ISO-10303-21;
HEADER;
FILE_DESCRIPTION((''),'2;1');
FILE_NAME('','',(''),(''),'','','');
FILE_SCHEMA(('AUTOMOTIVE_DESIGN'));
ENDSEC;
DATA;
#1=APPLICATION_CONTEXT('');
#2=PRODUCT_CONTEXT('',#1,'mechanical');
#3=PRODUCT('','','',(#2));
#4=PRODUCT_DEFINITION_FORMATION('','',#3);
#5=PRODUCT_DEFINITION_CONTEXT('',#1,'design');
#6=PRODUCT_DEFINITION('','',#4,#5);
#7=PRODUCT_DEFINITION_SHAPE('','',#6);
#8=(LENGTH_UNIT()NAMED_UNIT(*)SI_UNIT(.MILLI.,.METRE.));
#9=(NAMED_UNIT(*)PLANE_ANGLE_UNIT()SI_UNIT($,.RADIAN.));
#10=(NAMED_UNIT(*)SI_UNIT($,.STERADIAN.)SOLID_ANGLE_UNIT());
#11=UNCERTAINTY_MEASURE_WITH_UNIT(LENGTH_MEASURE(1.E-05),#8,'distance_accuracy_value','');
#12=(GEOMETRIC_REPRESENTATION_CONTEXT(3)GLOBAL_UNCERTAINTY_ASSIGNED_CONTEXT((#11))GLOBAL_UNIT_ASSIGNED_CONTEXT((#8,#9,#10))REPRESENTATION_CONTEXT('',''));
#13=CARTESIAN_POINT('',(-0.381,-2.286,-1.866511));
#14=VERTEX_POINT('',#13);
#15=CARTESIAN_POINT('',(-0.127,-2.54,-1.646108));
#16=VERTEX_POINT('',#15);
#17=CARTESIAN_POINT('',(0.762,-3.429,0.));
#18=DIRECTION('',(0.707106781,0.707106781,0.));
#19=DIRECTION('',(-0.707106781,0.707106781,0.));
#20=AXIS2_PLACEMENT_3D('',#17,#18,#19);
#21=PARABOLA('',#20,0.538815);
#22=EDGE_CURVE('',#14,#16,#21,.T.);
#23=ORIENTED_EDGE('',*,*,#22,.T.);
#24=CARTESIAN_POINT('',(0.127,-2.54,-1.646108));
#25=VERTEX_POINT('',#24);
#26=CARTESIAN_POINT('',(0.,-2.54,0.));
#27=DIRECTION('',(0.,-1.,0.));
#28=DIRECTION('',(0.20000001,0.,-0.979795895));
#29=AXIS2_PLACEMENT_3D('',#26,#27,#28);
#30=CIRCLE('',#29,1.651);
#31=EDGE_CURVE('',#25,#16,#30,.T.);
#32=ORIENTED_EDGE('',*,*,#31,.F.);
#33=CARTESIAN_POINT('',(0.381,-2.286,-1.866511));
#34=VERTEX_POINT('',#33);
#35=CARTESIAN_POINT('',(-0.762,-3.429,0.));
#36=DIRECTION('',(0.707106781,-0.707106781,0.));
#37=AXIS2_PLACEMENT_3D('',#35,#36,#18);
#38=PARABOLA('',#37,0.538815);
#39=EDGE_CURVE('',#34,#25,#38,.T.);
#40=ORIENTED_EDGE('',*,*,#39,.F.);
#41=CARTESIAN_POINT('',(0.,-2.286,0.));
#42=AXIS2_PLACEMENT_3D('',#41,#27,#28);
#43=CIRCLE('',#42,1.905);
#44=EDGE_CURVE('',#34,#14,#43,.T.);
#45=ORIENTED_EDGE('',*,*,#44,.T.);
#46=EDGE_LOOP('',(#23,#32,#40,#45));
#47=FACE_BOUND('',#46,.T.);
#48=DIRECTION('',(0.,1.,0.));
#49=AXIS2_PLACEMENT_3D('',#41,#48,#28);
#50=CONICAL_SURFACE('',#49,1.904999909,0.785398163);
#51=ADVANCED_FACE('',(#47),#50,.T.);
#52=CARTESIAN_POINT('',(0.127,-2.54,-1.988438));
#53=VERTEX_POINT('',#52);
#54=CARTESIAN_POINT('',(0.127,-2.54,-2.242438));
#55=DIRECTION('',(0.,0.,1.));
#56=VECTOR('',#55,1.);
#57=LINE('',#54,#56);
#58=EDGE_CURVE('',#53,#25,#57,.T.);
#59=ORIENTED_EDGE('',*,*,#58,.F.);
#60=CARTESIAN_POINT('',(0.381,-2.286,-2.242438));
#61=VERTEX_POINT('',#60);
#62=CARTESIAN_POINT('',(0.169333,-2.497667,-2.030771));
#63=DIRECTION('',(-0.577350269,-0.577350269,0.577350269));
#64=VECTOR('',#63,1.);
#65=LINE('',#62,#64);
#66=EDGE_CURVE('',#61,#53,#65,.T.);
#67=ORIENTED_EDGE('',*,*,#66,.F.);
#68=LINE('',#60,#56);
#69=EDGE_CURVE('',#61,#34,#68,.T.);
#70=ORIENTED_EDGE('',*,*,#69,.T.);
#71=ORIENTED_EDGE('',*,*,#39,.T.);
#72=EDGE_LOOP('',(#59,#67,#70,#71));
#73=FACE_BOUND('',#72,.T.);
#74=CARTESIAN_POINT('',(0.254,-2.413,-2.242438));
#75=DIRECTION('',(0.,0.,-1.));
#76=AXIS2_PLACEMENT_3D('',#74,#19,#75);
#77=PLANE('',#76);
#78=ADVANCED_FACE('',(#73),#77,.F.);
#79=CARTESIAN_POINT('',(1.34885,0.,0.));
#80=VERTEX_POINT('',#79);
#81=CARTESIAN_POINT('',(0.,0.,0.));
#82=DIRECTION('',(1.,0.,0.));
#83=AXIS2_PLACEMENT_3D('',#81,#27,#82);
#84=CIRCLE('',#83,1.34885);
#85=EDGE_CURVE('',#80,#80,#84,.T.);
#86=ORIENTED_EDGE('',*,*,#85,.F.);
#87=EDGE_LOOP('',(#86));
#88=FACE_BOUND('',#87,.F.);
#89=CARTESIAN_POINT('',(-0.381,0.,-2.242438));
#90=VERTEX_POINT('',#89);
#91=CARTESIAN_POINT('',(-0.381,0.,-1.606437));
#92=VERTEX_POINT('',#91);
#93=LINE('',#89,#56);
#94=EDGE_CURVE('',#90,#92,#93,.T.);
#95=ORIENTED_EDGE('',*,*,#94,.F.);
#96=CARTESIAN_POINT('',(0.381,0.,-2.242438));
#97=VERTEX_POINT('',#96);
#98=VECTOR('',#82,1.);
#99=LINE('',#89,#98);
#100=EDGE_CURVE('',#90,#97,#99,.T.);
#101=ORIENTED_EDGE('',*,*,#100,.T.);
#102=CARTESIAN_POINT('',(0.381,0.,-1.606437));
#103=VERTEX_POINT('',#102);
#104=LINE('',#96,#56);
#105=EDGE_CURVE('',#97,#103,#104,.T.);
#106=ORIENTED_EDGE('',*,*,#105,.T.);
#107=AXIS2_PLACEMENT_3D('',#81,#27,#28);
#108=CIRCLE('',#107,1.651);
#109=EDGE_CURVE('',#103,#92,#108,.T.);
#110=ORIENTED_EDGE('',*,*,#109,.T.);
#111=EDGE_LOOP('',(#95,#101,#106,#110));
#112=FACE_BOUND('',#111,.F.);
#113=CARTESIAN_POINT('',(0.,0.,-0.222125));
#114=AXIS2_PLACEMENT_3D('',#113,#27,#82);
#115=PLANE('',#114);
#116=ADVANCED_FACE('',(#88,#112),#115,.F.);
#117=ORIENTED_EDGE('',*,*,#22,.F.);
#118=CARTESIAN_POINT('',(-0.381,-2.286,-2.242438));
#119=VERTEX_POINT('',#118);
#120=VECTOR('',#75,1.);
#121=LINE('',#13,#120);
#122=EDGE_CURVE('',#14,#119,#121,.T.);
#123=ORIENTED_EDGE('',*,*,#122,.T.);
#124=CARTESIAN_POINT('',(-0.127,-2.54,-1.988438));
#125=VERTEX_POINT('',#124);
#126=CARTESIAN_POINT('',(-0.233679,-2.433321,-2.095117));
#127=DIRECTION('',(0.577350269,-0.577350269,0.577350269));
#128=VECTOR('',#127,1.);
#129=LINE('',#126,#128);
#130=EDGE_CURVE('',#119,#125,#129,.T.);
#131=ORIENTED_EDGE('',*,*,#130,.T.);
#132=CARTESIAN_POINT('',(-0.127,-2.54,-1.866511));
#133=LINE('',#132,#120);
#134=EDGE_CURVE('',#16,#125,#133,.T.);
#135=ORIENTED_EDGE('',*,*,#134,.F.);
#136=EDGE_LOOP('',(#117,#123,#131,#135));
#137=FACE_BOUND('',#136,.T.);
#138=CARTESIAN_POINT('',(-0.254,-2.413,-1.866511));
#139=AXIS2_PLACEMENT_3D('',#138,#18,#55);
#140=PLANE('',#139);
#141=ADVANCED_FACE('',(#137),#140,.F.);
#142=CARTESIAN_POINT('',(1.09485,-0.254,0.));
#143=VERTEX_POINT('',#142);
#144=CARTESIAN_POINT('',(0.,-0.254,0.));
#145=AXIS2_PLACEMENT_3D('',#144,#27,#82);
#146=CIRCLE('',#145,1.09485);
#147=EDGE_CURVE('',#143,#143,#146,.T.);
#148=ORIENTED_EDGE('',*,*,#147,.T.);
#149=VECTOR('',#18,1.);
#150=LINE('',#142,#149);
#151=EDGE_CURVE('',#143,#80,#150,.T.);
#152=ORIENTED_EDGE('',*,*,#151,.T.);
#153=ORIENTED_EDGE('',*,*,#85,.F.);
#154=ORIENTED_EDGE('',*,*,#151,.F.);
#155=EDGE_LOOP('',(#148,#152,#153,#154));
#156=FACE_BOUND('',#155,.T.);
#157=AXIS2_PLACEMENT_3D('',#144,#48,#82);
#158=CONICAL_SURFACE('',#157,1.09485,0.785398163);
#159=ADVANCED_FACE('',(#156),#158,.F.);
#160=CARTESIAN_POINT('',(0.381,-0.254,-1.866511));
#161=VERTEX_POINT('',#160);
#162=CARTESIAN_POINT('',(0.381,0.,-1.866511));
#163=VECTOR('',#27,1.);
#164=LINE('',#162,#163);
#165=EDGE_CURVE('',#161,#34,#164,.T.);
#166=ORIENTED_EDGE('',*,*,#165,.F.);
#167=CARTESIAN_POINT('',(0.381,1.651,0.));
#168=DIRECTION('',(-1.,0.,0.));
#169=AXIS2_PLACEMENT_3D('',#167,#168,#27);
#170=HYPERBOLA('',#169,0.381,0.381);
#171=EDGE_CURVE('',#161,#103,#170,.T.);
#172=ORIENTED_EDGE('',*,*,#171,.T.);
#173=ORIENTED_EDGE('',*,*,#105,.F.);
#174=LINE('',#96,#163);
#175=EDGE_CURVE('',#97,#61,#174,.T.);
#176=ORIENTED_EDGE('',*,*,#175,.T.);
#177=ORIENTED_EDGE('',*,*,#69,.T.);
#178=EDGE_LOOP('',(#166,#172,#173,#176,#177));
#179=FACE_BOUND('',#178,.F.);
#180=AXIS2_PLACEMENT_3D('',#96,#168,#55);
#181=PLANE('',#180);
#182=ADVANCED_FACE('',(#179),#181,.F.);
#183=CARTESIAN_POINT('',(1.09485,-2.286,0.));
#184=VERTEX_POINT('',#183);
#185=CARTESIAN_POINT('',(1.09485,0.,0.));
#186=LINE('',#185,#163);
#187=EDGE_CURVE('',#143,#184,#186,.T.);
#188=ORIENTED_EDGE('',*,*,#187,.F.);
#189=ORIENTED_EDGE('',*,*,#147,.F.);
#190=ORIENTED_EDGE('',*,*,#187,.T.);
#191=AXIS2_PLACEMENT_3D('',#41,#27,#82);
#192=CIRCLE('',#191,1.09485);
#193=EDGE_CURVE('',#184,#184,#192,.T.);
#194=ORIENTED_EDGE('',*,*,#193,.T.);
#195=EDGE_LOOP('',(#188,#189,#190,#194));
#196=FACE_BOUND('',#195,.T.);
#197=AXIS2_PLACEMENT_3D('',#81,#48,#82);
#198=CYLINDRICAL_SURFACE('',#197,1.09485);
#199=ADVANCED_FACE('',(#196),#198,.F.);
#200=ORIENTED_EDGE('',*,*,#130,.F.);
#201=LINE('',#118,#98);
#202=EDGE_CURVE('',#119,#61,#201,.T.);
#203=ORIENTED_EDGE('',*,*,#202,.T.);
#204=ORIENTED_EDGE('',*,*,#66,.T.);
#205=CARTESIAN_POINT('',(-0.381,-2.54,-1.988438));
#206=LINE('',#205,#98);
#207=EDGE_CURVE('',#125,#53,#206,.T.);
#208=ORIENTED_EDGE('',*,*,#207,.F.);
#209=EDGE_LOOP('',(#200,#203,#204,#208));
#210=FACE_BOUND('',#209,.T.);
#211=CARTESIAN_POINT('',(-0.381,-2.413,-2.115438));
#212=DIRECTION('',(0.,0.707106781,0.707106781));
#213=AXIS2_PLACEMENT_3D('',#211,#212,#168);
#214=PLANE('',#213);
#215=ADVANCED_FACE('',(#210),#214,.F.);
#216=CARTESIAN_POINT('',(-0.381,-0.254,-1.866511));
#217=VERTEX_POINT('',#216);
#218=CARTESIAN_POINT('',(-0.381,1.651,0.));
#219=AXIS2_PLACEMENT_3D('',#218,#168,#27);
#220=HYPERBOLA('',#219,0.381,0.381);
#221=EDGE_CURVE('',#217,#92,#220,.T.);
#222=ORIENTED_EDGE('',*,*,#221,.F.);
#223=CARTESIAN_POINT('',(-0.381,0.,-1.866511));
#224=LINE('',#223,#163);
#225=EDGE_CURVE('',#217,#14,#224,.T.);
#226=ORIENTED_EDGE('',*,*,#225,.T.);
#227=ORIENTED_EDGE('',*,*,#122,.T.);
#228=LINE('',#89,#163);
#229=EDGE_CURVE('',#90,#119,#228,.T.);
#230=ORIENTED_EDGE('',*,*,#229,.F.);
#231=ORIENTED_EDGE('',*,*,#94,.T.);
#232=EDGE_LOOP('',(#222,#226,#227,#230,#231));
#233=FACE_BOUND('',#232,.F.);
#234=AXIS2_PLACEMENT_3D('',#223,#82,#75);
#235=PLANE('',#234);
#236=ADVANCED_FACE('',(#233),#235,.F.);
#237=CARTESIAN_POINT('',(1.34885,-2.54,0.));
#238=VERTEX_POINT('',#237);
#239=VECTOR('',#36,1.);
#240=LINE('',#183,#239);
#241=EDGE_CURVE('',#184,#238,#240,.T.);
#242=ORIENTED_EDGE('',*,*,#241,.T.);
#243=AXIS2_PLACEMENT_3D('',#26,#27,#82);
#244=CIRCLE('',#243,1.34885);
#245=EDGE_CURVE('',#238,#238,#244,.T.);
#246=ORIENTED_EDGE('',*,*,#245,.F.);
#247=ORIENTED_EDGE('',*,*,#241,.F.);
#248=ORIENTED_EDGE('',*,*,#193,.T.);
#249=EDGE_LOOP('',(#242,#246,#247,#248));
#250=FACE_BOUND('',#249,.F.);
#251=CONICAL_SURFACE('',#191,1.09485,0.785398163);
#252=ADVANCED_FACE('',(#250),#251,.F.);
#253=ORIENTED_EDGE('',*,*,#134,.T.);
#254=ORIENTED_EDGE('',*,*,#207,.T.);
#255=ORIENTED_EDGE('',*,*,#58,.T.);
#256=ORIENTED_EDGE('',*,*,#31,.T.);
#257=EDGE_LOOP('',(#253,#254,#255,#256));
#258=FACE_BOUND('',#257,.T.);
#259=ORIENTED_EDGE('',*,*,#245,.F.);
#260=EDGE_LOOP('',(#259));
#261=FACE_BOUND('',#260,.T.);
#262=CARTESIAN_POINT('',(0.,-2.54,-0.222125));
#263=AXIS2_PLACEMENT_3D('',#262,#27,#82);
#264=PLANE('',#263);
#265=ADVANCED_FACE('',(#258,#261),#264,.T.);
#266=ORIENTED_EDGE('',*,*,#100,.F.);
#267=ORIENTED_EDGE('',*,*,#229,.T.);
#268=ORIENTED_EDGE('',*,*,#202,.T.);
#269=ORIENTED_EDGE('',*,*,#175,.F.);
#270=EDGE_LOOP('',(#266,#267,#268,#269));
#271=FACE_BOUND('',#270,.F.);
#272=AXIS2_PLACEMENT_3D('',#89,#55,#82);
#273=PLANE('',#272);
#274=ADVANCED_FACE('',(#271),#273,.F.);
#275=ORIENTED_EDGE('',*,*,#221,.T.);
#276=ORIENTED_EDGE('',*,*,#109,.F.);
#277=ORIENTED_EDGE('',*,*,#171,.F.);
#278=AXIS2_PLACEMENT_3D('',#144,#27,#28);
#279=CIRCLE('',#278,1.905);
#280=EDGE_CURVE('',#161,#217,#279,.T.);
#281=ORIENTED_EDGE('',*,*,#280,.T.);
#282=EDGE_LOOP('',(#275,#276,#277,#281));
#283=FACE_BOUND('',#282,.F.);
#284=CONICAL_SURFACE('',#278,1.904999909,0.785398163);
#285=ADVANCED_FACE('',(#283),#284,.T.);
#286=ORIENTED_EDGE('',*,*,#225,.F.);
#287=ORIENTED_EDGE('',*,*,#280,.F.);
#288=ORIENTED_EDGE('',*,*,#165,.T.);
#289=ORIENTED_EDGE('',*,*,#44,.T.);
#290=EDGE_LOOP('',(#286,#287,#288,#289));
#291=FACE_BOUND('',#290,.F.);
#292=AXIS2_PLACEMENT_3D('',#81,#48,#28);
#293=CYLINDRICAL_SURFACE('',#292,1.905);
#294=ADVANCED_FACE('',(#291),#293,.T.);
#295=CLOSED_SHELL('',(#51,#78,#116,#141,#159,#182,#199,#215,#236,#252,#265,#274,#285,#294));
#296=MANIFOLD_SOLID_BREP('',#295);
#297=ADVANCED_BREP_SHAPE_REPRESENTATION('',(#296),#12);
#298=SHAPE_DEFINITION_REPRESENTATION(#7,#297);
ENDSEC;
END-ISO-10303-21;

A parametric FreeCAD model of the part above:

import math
import FreeCAD as App
import Part
import Sketcher
Q = App.Units.Quantity


def edges_at(feature, points):
    """Names of the edges that pass closest to the given points."""
    edges = feature.Shape.Edges
    near = lambda p: min(range(len(edges)), key=lambda i: edges[i].distToShape(Part.Vertex(*p))[0])
    return sorted({f"Edge{near(p) + 1}" for p in points})

doc = App.newDocument("Part")
body = doc.addObject("PartDesign::Body", "Body")

# Sketch on XZ plane
sketch1 = body.newObject("Sketcher::SketchObject", "Sketch")
sketch1.AttachmentSupport = (doc.getObject("XZ_Plane"), [""])
sketch1.MapMode = "FlatFace"
sketch1.addGeometry(Part.LineSegment(App.Vector(0.381, -2.242438, 0), App.Vector(0.381, -1.866511, 0)), False)
sketch1.addGeometry(Part.ArcOfCircle(Part.Circle(App.Vector(0, 0, 0), App.Vector(0, 0, 1), 1.905), math.radians(-78.46304), math.radians(258.46304)), False)
sketch1.addGeometry(Part.LineSegment(App.Vector(-0.381, -1.866511, 0), App.Vector(-0.381, -2.242438, 0)), False)
sketch1.addGeometry(Part.LineSegment(App.Vector(-0.381, -2.242438, 0), App.Vector(0.381, -2.242438, 0)), False)
sketch1.addGeometry(Part.Circle(App.Vector(0, 0, 0), App.Vector(0, 0, 1), 1.09485), False)
sketch1.addConstraint(Sketcher.Constraint("Coincident", 0, 2, 1, 1))
sketch1.addConstraint(Sketcher.Constraint("Coincident", 1, 2, 2, 1))
sketch1.addConstraint(Sketcher.Constraint("Coincident", 2, 2, 3, 1))
sketch1.addConstraint(Sketcher.Constraint("Coincident", 3, 2, 0, 1))
sketch1.addConstraint(Sketcher.Constraint("Vertical", 0))
sketch1.addConstraint(Sketcher.Constraint("Vertical", 2))
sketch1.addConstraint(Sketcher.Constraint("Horizontal", 3))
sketch1.addConstraint(Sketcher.Constraint("Coincident", 1, 3, -1, 1))
sketch1.addConstraint(Sketcher.Constraint("Coincident", 4, 3, -1, 1))
sketch1.addConstraint(Sketcher.Constraint("Horizontal", 0, 2, 1, 2))
sketch1.addConstraint(Sketcher.Constraint("Radius", 1, Q("0.075 in")))
sketch1.addConstraint(Sketcher.Constraint("DistanceX", 3, 1, 3, 2, Q("0.03 in")))
sketch1.addConstraint(Sketcher.Constraint("Diameter", 4, 2.1897))
sketch1.addConstraint(Sketcher.Constraint("DistanceY", 0, 1, 0, 2, 0.375927))
pad1 = body.newObject("PartDesign::Pad", "Pad")
pad1.Profile = sketch1
pad1.Length = Q("0.1 in")
doc.recompute()

chamfer = body.newObject("PartDesign::Chamfer", "Chamfer")
chamfer.Base = (pad1, edges_at(pad1, [
    (-1.095, -2.54, 0),
    (-1.095, 0, 0),
    (0, 0, 1.905),
    (-0.381, -2.54, -2.054),
    (0, -2.54, -2.242),
    (0.381, -2.54, -2.054),
    (0, -2.54, 1.905),
]))
chamfer.Size = Q("0.01 in")

doc.recompute()
